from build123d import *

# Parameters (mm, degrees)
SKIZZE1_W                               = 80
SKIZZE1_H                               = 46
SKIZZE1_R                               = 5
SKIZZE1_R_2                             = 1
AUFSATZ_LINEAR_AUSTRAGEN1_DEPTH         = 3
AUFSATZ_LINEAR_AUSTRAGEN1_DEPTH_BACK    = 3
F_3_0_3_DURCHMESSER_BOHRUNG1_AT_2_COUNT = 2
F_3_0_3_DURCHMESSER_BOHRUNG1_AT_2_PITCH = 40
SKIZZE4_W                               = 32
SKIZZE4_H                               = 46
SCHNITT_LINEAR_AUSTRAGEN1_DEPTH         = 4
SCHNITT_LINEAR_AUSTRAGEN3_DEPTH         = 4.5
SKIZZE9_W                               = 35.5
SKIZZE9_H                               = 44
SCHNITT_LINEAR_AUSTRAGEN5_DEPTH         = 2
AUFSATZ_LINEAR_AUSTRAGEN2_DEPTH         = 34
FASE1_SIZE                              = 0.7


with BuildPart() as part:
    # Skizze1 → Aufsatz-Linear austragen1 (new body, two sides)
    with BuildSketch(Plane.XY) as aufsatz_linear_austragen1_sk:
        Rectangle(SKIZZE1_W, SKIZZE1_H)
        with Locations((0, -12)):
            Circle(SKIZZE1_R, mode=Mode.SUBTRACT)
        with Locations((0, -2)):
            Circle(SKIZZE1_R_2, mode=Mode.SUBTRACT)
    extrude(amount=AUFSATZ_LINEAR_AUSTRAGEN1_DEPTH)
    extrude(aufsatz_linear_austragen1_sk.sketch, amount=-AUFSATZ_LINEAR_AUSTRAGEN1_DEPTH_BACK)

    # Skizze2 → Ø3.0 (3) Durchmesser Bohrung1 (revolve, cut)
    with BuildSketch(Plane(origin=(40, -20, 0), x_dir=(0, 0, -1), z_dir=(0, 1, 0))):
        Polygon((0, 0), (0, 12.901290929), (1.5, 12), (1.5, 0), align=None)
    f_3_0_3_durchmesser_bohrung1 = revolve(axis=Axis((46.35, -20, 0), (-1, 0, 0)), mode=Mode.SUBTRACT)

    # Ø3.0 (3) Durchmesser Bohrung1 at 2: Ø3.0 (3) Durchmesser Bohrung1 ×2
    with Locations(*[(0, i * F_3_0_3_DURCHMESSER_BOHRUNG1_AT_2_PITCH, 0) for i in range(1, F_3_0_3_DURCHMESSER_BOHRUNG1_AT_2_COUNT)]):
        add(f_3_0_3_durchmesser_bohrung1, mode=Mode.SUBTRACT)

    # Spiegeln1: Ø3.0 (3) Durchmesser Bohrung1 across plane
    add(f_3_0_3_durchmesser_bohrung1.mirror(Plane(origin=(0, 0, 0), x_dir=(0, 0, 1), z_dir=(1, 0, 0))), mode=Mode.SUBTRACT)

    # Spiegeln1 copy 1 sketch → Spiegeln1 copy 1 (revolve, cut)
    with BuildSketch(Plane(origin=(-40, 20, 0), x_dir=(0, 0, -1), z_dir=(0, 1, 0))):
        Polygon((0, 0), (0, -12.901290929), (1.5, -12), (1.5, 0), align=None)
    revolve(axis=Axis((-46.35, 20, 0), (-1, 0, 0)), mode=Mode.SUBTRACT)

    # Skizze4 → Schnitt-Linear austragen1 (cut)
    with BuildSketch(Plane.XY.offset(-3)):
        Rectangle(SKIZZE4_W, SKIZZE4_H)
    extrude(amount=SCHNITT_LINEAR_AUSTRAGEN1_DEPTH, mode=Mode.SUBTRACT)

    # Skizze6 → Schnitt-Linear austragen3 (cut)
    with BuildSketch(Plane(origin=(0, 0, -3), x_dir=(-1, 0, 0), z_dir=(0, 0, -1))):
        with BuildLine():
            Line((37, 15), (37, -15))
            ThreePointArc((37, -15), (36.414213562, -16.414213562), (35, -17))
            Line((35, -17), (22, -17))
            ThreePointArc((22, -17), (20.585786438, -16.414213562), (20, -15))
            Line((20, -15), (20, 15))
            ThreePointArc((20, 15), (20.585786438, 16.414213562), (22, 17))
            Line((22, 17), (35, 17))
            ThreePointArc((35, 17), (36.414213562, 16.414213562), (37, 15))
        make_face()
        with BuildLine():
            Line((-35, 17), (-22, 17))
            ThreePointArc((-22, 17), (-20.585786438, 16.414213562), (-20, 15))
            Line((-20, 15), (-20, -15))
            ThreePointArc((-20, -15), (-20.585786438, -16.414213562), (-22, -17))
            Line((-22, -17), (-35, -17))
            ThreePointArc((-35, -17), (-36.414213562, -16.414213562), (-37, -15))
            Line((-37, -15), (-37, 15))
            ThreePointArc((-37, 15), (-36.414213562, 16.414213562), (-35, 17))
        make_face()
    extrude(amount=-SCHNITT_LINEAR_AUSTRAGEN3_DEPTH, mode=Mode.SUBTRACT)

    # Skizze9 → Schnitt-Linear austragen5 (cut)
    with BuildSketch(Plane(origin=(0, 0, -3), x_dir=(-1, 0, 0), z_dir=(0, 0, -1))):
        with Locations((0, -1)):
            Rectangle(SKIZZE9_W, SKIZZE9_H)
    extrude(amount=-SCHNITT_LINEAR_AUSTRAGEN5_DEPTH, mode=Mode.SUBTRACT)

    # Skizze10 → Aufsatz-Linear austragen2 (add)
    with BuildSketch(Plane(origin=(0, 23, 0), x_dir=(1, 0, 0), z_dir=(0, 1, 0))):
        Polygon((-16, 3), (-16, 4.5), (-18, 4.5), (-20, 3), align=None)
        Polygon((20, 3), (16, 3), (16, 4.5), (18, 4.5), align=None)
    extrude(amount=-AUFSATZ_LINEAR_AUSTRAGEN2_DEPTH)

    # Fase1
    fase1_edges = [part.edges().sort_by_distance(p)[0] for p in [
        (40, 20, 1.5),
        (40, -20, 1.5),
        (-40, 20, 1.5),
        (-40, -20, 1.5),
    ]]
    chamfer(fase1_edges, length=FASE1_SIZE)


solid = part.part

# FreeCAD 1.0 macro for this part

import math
import FreeCAD as App
import Part
import Sketcher
from FreeCAD import Vector
Q = App.Units.Quantity


def edges_at(feature, points):
    """Names of the edges that pass closest to the given points."""
    edges = feature.Shape.Edges
    near = lambda p: min(range(len(edges)), key=lambda i: edges[i].distToShape(Part.Vertex(*p))[0])
    return sorted({f"Edge{near(p) + 1}" for p in points})


def add_polygon(sketch, points):
    """Adds a closed chain of lines whose ends are joined by coincident constraints."""
    first, n = sketch.GeometryCount, len(points)
    for a, b in zip(points, points[1:] + points[:1]):
        sketch.addGeometry(Part.LineSegment(App.Vector(*a, 0), App.Vector(*b, 0)), False)
    for i in range(n):
        sketch.addConstraint(Sketcher.Constraint("Coincident", first + i, 2, first + (i + 1) % n, 1))

doc = App.newDocument("Part")
params = doc.addObject("Spreadsheet::Sheet", "Params")
for row, (alias, value) in enumerate([
    ("sketch1_diameter", "10 mm"),
    ("sketch1_diameter2", "2 mm"),
    ("sketch1_width", "80 mm"),
    ("sketch1_height", "46 mm"),
    ("pad1_length", "3 mm"),
    ("pad1_length2", "3 mm"),
    ("sketch2_width", "12 mm"),
    ("sketch2_height", "1.5 mm"),
    ("groove_angle", "360 deg"),
    ("linearpattern_pitch", "40 mm"),
    ("sketch3_width", "12 mm"),
    ("sketch3_height", "1.5 mm"),
    ("groove2_angle", "360 deg"),
    ("sketch4_width", "32 mm"),
    ("sketch4_height", "46 mm"),
    ("pocket1_length", "4 mm"),
    ("sketch5_radius", "2 mm"),
    ("sketch5_width", "13 mm"),
    ("sketch5_height", "30 mm"),
    ("pocket2_length", "4.5 mm"),
    ("sketch6_height", "44 mm"),
    ("sketch6_width", "35.5 mm"),
    ("pocket3_length", "2 mm"),
    ("sketch7_width", "2 mm"),
    ("sketch7_width2", "4 mm"),
    ("sketch7_height", "1.5 mm"),
    ("pad2_length", "34 mm"),
    ("chamfer_size", "0.7 mm"),
], start=1):
    params.set(f"A{row}", alias)
    params.set(f"B{row}", "=" + value)
    params.setAlias(f"B{row}", alias)

body = doc.addObject("PartDesign::Body", "Body")

# Sketch on XY plane
sketch1 = body.newObject("Sketcher::SketchObject", "Sketch")
sketch1.AttachmentSupport = (doc.getObject("XY_Plane"), [""])
sketch1.MapMode = "FlatFace"
add_polygon(sketch1, [(-40, 23), (-40, -23), (40, -23), (40, 23)])  # lines 0-3
sketch1.addGeometry(Part.Circle(Vector(0, -12, 0), Vector(0, 0, 1), 5), False)  # 4
sketch1.addGeometry(Part.Circle(Vector(0, -2, 0), Vector(0, 0, 1), 1), False)  # 5
sketch1.addConstraint(Sketcher.Constraint("Vertical", 0))
sketch1.addConstraint(Sketcher.Constraint("Horizontal", 1))
sketch1.addConstraint(Sketcher.Constraint("Vertical", 2))
sketch1.addConstraint(Sketcher.Constraint("Horizontal", 3))
sketch1.addConstraint(Sketcher.Constraint("Symmetric", 0, 2, 2, 2, -1, 1))
sketch1.addConstraint(Sketcher.Constraint("PointOnObject", 4, 3, -2))
sketch1.addConstraint(Sketcher.Constraint("PointOnObject", 5, 3, -2))
sketch1.addConstraint(Sketcher.Constraint("Diameter", 4, 10.0))
sketch1.addConstraint(Sketcher.Constraint("Diameter", 5, 2.0))
sketch1.addConstraint(Sketcher.Constraint("DistanceX", 1, 1, 1, 2, 80.0))
sketch1.addConstraint(Sketcher.Constraint("DistanceY", 0, 2, 0, 1, 46.0))
sketch1.addConstraint(Sketcher.Constraint("DistanceY", 4, 3, -1, 1, 12.0))
sketch1.addConstraint(Sketcher.Constraint("DistanceY", 5, 3, -1, 1, 2.0))
sketch1.setExpression("Constraints[11]", "Params.sketch1_diameter")
sketch1.setExpression("Constraints[12]", "Params.sketch1_diameter2")
sketch1.setExpression("Constraints[13]", "Params.sketch1_width")
sketch1.setExpression("Constraints[14]", "Params.sketch1_height")
pad1 = body.newObject("PartDesign::Pad", "Pad")
pad1.Profile = sketch1
pad1.Type = "TwoLengths"
pad1.setExpression("Length", "Params.pad1_length")
pad1.setExpression("Length2", "Params.pad1_length2")

# Sketch on XZ plane
sketch2 = body.newObject("Sketcher::SketchObject", "Sketch001")
sketch2.AttachmentSupport = (doc.getObject("XZ_Plane"), [""])
sketch2.MapMode = "FlatFace"
sketch2.AttachmentOffset = App.Placement(Vector(0, 0, 20), App.Rotation())
add_polygon(sketch2, [(27.1, 0), (40, 0), (40, -1.5), (28, -1.5)])  # lines 0-3
sketch2.addConstraint(Sketcher.Constraint("Horizontal", 0))
sketch2.addConstraint(Sketcher.Constraint("Vertical", 1))
sketch2.addConstraint(Sketcher.Constraint("Horizontal", 2))
sketch2.addConstraint(Sketcher.Constraint("PointOnObject", 0, 2, -1))
sketch2.addConstraint(Sketcher.Constraint("DistanceX", 2, 2, 2, 1, 12.0))
sketch2.addConstraint(Sketcher.Constraint("Angle", 3, Q("121 deg")))
sketch2.addConstraint(Sketcher.Constraint("DistanceY", 1, 2, 1, 1, 1.5))
sketch2.addConstraint(Sketcher.Constraint("DistanceX", -1, 1, 0, 2, 40.0))
sketch2.setExpression("Constraints[8]", "Params.sketch2_width")
sketch2.setExpression("Constraints[10]", "Params.sketch2_height")
groove = body.newObject("PartDesign::Groove", "Groove")
groove.Profile = sketch2
groove.ReferenceAxis = (sketch2, ["H_Axis"])
groove.setExpression("Angle", "Params.groove_angle")
doc.recompute()

linearpattern = body.newObject("PartDesign::LinearPattern", "LinearPattern")
linearpattern.Originals = [groove]
linearpattern.Direction = (doc.getObject("Y_Axis"), [""])
linearpattern.Mode = "offset"
linearpattern.setExpression("Offset", "Params.linearpattern_pitch")
linearpattern.Occurrences = 2
body.Tip = linearpattern
doc.recompute()

mirrored = body.newObject("PartDesign::Mirrored", "Mirrored")
mirrored.Originals = [groove]
mirrored.MirrorPlane = (doc.getObject("YZ_Plane"), [""])
body.Tip = mirrored

# Sketch on XZ plane
sketch3 = body.newObject("Sketcher::SketchObject", "Sketch002")
sketch3.AttachmentSupport = (doc.getObject("XZ_Plane"), [""])
sketch3.MapMode = "FlatFace"
sketch3.AttachmentOffset = App.Placement(Vector(0, 0, -20), App.Rotation())
add_polygon(sketch3, [(-40, 0), (-27.1, 0), (-28, -1.5), (-40, -1.5)])  # lines 0-3
sketch3.addConstraint(Sketcher.Constraint("Horizontal", 0))
sketch3.addConstraint(Sketcher.Constraint("Horizontal", 2))
sketch3.addConstraint(Sketcher.Constraint("Vertical", 3))
sketch3.addConstraint(Sketcher.Constraint("PointOnObject", 0, 2, -1))
sketch3.addConstraint(Sketcher.Constraint("DistanceX", 2, 2, 2, 1, 12.0))
sketch3.addConstraint(Sketcher.Constraint("Angle", 1, Q("-121 deg")))
sketch3.addConstraint(Sketcher.Constraint("DistanceY", 3, 1, 3, 2, 1.5))
sketch3.addConstraint(Sketcher.Constraint("DistanceX", 1, 2, -1, 1, 28.0))
sketch3.setExpression("Constraints[8]", "Params.sketch3_width")
sketch3.setExpression("Constraints[10]", "Params.sketch3_height")
groove2 = body.newObject("PartDesign::Groove", "Groove001")
groove2.Profile = sketch3
groove2.ReferenceAxis = (sketch3, ["H_Axis"])
groove2.setExpression("Angle", "Params.groove2_angle")

# Sketch on XY plane
sketch4 = body.newObject("Sketcher::SketchObject", "Sketch003")
sketch4.AttachmentSupport = (doc.getObject("XY_Plane"), [""])
sketch4.MapMode = "FlatFace"
sketch4.AttachmentOffset = App.Placement(Vector(0, 0, -3), App.Rotation())
add_polygon(sketch4, [(-16, 23), (-16, -23), (16, -23), (16, 23)])  # lines 0-3
sketch4.addConstraint(Sketcher.Constraint("Vertical", 0))
sketch4.addConstraint(Sketcher.Constraint("Horizontal", 1))
sketch4.addConstraint(Sketcher.Constraint("Vertical", 2))
sketch4.addConstraint(Sketcher.Constraint("Horizontal", 3))
sketch4.addConstraint(Sketcher.Constraint("Symmetric", 0, 2, 2, 2, -1, 1))
sketch4.addConstraint(Sketcher.Constraint("DistanceX", 1, 1, 1, 2, 32.0))
sketch4.addConstraint(Sketcher.Constraint("DistanceY", 0, 2, 0, 1, 46.0))
sketch4.setExpression("Constraints[9]", "Params.sketch4_width")
sketch4.setExpression("Constraints[10]", "Params.sketch4_height")
pocket1 = body.newObject("PartDesign::Pocket", "Pocket")
pocket1.Profile = sketch4
pocket1.setExpression("Length", "Params.pocket1_length")
pocket1.Reversed = True

# Sketch on XY plane
sketch5 = body.newObject("Sketcher::SketchObject", "Sketch004")
sketch5.AttachmentSupport = (doc.getObject("XY_Plane"), [""])
sketch5.MapMode = "FlatFace"
sketch5.AttachmentOffset = App.Placement(Vector(0, 0, -3), App.Rotation())
sketch5.addGeometry(Part.LineSegment(Vector(-37, -15, 0), Vector(-37, 15, 0)), False)
sketch5.addGeometry(Part.ArcOfCircle(Part.Circle(Vector(-35, 15, 0), Vector(0, 0, 1), 2), math.radians(90), math.radians(180)), False)
sketch5.addGeometry(Part.LineSegment(Vector(-35, 17, 0), Vector(-22, 17, 0)), False)
sketch5.addGeometry(Part.ArcOfCircle(Part.Circle(Vector(-22, 15, 0), Vector(0, 0, 1), 2), math.radians(0), math.radians(90)), False)
sketch5.addGeometry(Part.LineSegment(Vector(-20, 15, 0), Vector(-20, -15, 0)), False)
sketch5.addGeometry(Part.ArcOfCircle(Part.Circle(Vector(-22, -15, 0), Vector(0, 0, 1), 2), math.radians(-90), math.radians(0)), False)
sketch5.addGeometry(Part.LineSegment(Vector(-22, -17, 0), Vector(-35, -17, 0)), False)
sketch5.addGeometry(Part.ArcOfCircle(Part.Circle(Vector(-35, -15, 0), Vector(0, 0, 1), 2), math.radians(-180), math.radians(-90)), False)
sketch5.addGeometry(Part.LineSegment(Vector(22, 17, 0), Vector(35, 17, 0)), False)
sketch5.addGeometry(Part.ArcOfCircle(Part.Circle(Vector(35, 15, 0), Vector(0, 0, 1), 2), math.radians(0), math.radians(90)), False)
sketch5.addGeometry(Part.LineSegment(Vector(37, 15, 0), Vector(37, -15, 0)), False)
sketch5.addGeometry(Part.ArcOfCircle(Part.Circle(Vector(35, -15, 0), Vector(0, 0, 1), 2), math.radians(-90), math.radians(0)), False)
sketch5.addGeometry(Part.LineSegment(Vector(35, -17, 0), Vector(22, -17, 0)), False)
sketch5.addGeometry(Part.ArcOfCircle(Part.Circle(Vector(22, -15, 0), Vector(0, 0, 1), 2), math.radians(-180), math.radians(-90)), False)
sketch5.addGeometry(Part.LineSegment(Vector(20, -15, 0), Vector(20, 15, 0)), False)
sketch5.addGeometry(Part.ArcOfCircle(Part.Circle(Vector(22, 15, 0), Vector(0, 0, 1), 2), math.radians(90), math.radians(180)), False)
sketch5.addConstraint(Sketcher.Constraint("Tangent", 0, 2, 1, 2))
sketch5.addConstraint(Sketcher.Constraint("Tangent", 1, 1, 2, 1))
sketch5.addConstraint(Sketcher.Constraint("Tangent", 2, 2, 3, 2))
sketch5.addConstraint(Sketcher.Constraint("Tangent", 3, 1, 4, 1))
sketch5.addConstraint(Sketcher.Constraint("Tangent", 4, 2, 5, 2))
sketch5.addConstraint(Sketcher.Constraint("Tangent", 5, 1, 6, 1))
sketch5.addConstraint(Sketcher.Constraint("Tangent", 6, 2, 7, 2))
sketch5.addConstraint(Sketcher.Constraint("Tangent", 7, 1, 0, 1))
sketch5.addConstraint(Sketcher.Constraint("Tangent", 8, 2, 9, 2))
sketch5.addConstraint(Sketcher.Constraint("Tangent", 9, 1, 10, 1))
sketch5.addConstraint(Sketcher.Constraint("Tangent", 10, 2, 11, 2))
sketch5.addConstraint(Sketcher.Constraint("Tangent", 11, 1, 12, 1))
sketch5.addConstraint(Sketcher.Constraint("Tangent", 12, 2, 13, 2))
sketch5.addConstraint(Sketcher.Constraint("Tangent", 13, 1, 14, 1))
sketch5.addConstraint(Sketcher.Constraint("Tangent", 14, 2, 15, 2))
sketch5.addConstraint(Sketcher.Constraint("Tangent", 15, 1, 8, 1))
sketch5.addConstraint(Sketcher.Constraint("Vertical", 0))
sketch5.addConstraint(Sketcher.Constraint("Horizontal", 2))
sketch5.addConstraint(Sketcher.Constraint("Vertical", 4))
sketch5.addConstraint(Sketcher.Constraint("Horizontal", 6))
sketch5.addConstraint(Sketcher.Constraint("Horizontal", 8))
sketch5.addConstraint(Sketcher.Constraint("Vertical", 10))
sketch5.addConstraint(Sketcher.Constraint("Horizontal", 12))
sketch5.addConstraint(Sketcher.Constraint("Vertical", 14))
sketch5.addConstraint(Sketcher.Constraint("Equal", 1, 3))
sketch5.addConstraint(Sketcher.Constraint("Equal", 3, 5))
sketch5.addConstraint(Sketcher.Constraint("Equal", 5, 7))
sketch5.addConstraint(Sketcher.Constraint("Equal", 7, 9))
sketch5.addConstraint(Sketcher.Constraint("Equal", 9, 11))
sketch5.addConstraint(Sketcher.Constraint("Equal", 11, 13))
sketch5.addConstraint(Sketcher.Constraint("Equal", 13, 15))
sketch5.addConstraint(Sketcher.Constraint("Symmetric", 7, 3, 9, 3, -1, 1))
sketch5.addConstraint(Sketcher.Constraint("Symmetric", 3, 3, 13, 3, -1, 1))
sketch5.addConstraint(Sketcher.Constraint("Horizontal", 3, 3, 9, 3))
sketch5.addConstraint(Sketcher.Constraint("Radius", 1, 2.0))
sketch5.addConstraint(Sketcher.Constraint("DistanceX", 2, 1, 2, 2, 13.0))
sketch5.addConstraint(Sketcher.Constraint("DistanceY", 0, 1, 0, 2, 30.0))
sketch5.addConstraint(Sketcher.Constraint("DistanceX", 1, 3, -1, 1, 35.0))
sketch5.setExpression("Constraints[34]", "Params.sketch5_radius")
sketch5.setExpression("Constraints[35]", "Params.sketch5_width")
sketch5.setExpression("Constraints[36]", "Params.sketch5_height")
pocket2 = body.newObject("PartDesign::Pocket", "Pocket001")
pocket2.Profile = sketch5
pocket2.setExpression("Length", "Params.pocket2_length")
pocket2.Reversed = True

# Sketch on XY plane
sketch6 = body.newObject("Sketcher::SketchObject", "Sketch005")
sketch6.AttachmentSupport = (doc.getObject("XY_Plane"), [""])
sketch6.MapMode = "FlatFace"
sketch6.AttachmentOffset = App.Placement(Vector(0, 0, -3), App.Rotation())
add_polygon(sketch6, [(18, 21), (18, -23), (-18, -23), (-18, 21)])  # lines 0-3
sketch6.addConstraint(Sketcher.Constraint("Vertical", 0))
sketch6.addConstraint(Sketcher.Constraint("Horizontal", 1))
sketch6.addConstraint(Sketcher.Constraint("Vertical", 2))
sketch6.addConstraint(Sketcher.Constraint("Horizontal", 3))
sketch6.addConstraint(Sketcher.Constraint("DistanceY", 0, 2, 0, 1, 44.0))
sketch6.addConstraint(Sketcher.Constraint("DistanceX", 1, 2, 1, 1, 35.5))
sketch6.addConstraint(Sketcher.Constraint("DistanceY", 0, 2, -1, 1, 23.0))
sketch6.addConstraint(Sketcher.Constraint("DistanceX", -1, 1, 0, 2, 17.75))
sketch6.setExpression("Constraints[8]", "Params.sketch6_height")
sketch6.setExpression("Constraints[9]", "Params.sketch6_width")
pocket3 = body.newObject("PartDesign::Pocket", "Pocket002")
pocket3.Profile = sketch6
pocket3.setExpression("Length", "Params.pocket3_length")
pocket3.Reversed = True

# Sketch on XZ plane
sketch7 = body.newObject("Sketcher::SketchObject", "Sketch006")
sketch7.AttachmentSupport = (doc.getObject("XZ_Plane"), [""])
sketch7.MapMode = "FlatFace"
sketch7.AttachmentOffset = App.Placement(Vector(0, 0, -23), App.Rotation())
add_polygon(sketch7, [(-16, -3), (-16, -4.5), (-18, -4.5), (-20, -3)])  # lines 0-3
add_polygon(sketch7, [(16, -3), (20, -3), (18, -4.5), (16, -4.5)])  # lines 4-7
sketch7.addConstraint(Sketcher.Constraint("Vertical", 0))
sketch7.addConstraint(Sketcher.Constraint("Horizontal", 1))
sketch7.addConstraint(Sketcher.Constraint("Horizontal", 3))
sketch7.addConstraint(Sketcher.Constraint("Horizontal", 4))
sketch7.addConstraint(Sketcher.Constraint("Horizontal", 6))
sketch7.addConstraint(Sketcher.Constraint("Vertical", 7))
sketch7.addConstraint(Sketcher.Constraint("Symmetric", 2, 2, 4, 2, -2))
sketch7.addConstraint(Sketcher.Constraint("Symmetric", 1, 2, 5, 2, -2))
sketch7.addConstraint(Sketcher.Constraint("Equal", 3, 4))
sketch7.addConstraint(Sketcher.Constraint("DistanceX", 1, 2, 1, 1, 2.0))
sketch7.addConstraint(Sketcher.Constraint("DistanceX", 3, 1, 3, 2, 4.0))
sketch7.addConstraint(Sketcher.Constraint("DistanceY", 0, 2, 0, 1, 1.5))
sketch7.addConstraint(Sketcher.Constraint("DistanceX", 0, 2, -1, 1, 16.0))
sketch7.addConstraint(Sketcher.Constraint("DistanceY", 2, 2, -1, 1, 3.0))
sketch7.setExpression("Constraints[17]", "Params.sketch7_width")
sketch7.setExpression("Constraints[18]", "Params.sketch7_width2")
sketch7.setExpression("Constraints[19]", "Params.sketch7_height")
pad2 = body.newObject("PartDesign::Pad", "Pad001")
pad2.Profile = sketch7
pad2.setExpression("Length", "Params.pad2_length")
doc.recompute()

chamfer = body.newObject("PartDesign::Chamfer", "Chamfer")
chamfer.Base = (pad2, edges_at(pad2, [
    (40, 20, 1.5),
    (40, -20, 1.5),
    (-40, 20, 1.5),
    (-40, -20, 1.5),
]))
chamfer.setExpression("Size", "Params.chamfer_size")

doc.recompute()
